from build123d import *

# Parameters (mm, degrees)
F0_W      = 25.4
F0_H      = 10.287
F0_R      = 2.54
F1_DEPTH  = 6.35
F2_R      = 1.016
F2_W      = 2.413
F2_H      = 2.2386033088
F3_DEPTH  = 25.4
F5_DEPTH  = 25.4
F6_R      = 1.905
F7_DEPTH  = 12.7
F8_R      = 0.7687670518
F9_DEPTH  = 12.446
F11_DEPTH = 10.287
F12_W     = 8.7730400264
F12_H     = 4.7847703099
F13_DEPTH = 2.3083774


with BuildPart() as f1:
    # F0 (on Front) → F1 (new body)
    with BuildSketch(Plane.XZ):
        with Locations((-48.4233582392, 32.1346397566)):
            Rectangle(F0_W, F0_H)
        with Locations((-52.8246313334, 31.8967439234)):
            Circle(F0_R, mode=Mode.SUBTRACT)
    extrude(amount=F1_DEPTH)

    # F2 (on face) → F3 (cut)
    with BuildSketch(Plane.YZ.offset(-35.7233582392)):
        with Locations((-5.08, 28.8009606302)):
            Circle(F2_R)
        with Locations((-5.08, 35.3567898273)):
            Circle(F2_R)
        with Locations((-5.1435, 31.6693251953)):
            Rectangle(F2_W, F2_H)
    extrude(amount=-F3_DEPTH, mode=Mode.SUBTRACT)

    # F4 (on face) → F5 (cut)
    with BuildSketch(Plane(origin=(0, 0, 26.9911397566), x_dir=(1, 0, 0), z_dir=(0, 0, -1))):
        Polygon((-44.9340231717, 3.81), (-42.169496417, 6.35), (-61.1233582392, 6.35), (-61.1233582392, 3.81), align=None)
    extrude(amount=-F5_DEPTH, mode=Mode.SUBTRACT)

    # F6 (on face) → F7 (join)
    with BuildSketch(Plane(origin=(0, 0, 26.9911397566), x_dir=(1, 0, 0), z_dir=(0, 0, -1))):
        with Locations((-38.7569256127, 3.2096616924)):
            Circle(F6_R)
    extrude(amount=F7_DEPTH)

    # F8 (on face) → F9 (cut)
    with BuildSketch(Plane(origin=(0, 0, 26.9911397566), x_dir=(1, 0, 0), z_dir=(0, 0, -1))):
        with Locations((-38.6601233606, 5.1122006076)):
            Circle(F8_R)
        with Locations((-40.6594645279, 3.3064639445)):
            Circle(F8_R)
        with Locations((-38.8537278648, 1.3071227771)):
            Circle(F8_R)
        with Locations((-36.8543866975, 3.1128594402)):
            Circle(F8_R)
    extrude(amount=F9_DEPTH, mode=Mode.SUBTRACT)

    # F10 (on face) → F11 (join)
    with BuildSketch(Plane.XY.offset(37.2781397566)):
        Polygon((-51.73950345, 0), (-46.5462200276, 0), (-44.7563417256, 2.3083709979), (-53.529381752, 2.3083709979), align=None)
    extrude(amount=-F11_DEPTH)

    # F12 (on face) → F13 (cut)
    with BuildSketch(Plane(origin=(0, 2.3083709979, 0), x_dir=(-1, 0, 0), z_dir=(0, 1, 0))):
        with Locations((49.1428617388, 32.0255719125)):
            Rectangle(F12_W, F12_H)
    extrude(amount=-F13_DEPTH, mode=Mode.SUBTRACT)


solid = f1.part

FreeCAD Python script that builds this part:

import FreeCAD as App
import Part
import Sketcher
from FreeCAD import Vector
Q = App.Units.Quantity


def add_polygon(sketch, points):
    """Adds a closed chain of lines whose ends are joined by coincident constraints."""
    first, n = sketch.GeometryCount, len(points)
    for a, b in zip(points, points[1:] + points[:1]):
        sketch.addGeometry(Part.LineSegment(App.Vector(*a, 0), App.Vector(*b, 0)), False)
    for i in range(n):
        sketch.addConstraint(Sketcher.Constraint("Coincident", first + i, 2, first + (i + 1) % n, 1))

doc = App.newDocument("Part")
body = doc.addObject("PartDesign::Body", "Body")

# Sketch on XZ plane
sketch1 = doc.addObject("Sketcher::SketchObject", "Sketch")
body.addObject(sketch1)
sketch1.AttachmentSupport = (doc.XZ_Plane, [""])
sketch1.MapMode = "FlatFace"
add_polygon(sketch1, [(-61.123358, 37.27814), (-61.123358, 26.99114), (-35.723358, 26.99114), (-35.723358, 37.27814)])  # lines 0-3
sketch1.addGeometry(Part.Circle(Vector(-52.824631, 31.896744, 0), Vector(0, 0, 1), 2.54), False)  # 4
sketch1.addConstraint([
    Sketcher.Constraint("Vertical", 0),
    Sketcher.Constraint("Horizontal", 1),
    Sketcher.Constraint("Vertical", 2),
    Sketcher.Constraint("Horizontal", 3),
    Sketcher.Constraint("Diameter", 4, Q("0.2 in")),
    Sketcher.Constraint("DistanceX", 1, 1, 1, 2, Q("1 in")),
    Sketcher.Constraint("DistanceY", 0, 2, 0, 1, Q("0.405 in")),
    Sketcher.Constraint("DistanceX", 4, 3, -1, 1, Q("52.824631 mm")),
    Sketcher.Constraint("DistanceX", 0, 2, -1, 1, Q("61.123358 mm")),
    Sketcher.Constraint("DistanceY", -1, 1, 0, 2, Q("26.99114 mm")),
    Sketcher.Constraint("DistanceY", -1, 1, 4, 3, Q("31.896744 mm")),
])
pad1 = doc.addObject("PartDesign::Pad", "Pad")
body.addObject(pad1)
pad1.Profile = sketch1
pad1.Length = Q("0.25 in")

# Sketch on YZ plane
sketch2 = doc.addObject("Sketcher::SketchObject", "Sketch001")
body.addObject(sketch2)
sketch2.AttachmentSupport = (doc.YZ_Plane, [""])
sketch2.MapMode = "FlatFace"
sketch2.AttachmentOffset = App.Placement(Vector(0, 0, -35.723358), App.Rotation())
sketch2.addGeometry(Part.Circle(Vector(-5.08, 28.800961, 0), Vector(0, 0, 1), 1.016), False)  # 0
sketch2.addGeometry(Part.Circle(Vector(-5.08, 35.35679, 0), Vector(0, 0, 1), 1.016), False)  # 1
add_polygon(sketch2, [(-6.35, 32.788627), (-6.35, 30.550024), (-3.937, 30.550024), (-3.937, 32.788627)])  # lines 2-5
sketch2.addConstraint([
    Sketcher.Constraint("Vertical", 2),
    Sketcher.Constraint("Horizontal", 3),
    Sketcher.Constraint("Vertical", 4),
    Sketcher.Constraint("Horizontal", 5),
    Sketcher.Constraint("Equal", 0, 1),
    Sketcher.Constraint("Vertical", 0, 3, 1, 3),
    Sketcher.Constraint("Diameter", 0, Q("0.08 in")),
    Sketcher.Constraint("DistanceX", 0, 3, -1, 1, Q("0.2 in")),
    Sketcher.Constraint("DistanceX", 3, 1, 3, 2, Q("0.095 in")),
    Sketcher.Constraint("DistanceX", 2, 2, -1, 1, Q("0.25 in")),
    Sketcher.Constraint("DistanceY", 2, 2, 2, 1, Q("2.238603 mm")),
    Sketcher.Constraint("DistanceY", -1, 1, 0, 3, Q("28.800961 mm")),
    Sketcher.Constraint("DistanceY", -1, 1, 1, 3, Q("35.35679 mm")),
    Sketcher.Constraint("DistanceY", -1, 1, 2, 2, Q("30.550024 mm")),
])
pocket1 = doc.addObject("PartDesign::Pocket", "Pocket")
body.addObject(pocket1)
pocket1.Profile = sketch2
pocket1.Length = Q("1 in")

# Sketch on XY plane
sketch3 = doc.addObject("Sketcher::SketchObject", "Sketch002")
body.addObject(sketch3)
sketch3.AttachmentSupport = (doc.XY_Plane, [""])
sketch3.MapMode = "FlatFace"
sketch3.AttachmentOffset = App.Placement(Vector(0, 0, 26.99114), App.Rotation())
add_polygon(sketch3, [(-44.934023, -3.81), (-42.169496, -6.35), (-61.123358, -6.35), (-61.123358, -3.81)])  # lines 0-3
sketch3.addConstraint([
    Sketcher.Constraint("Horizontal", 1),
    Sketcher.Constraint("Vertical", 2),
    Sketcher.Constraint("Horizontal", 3),
    Sketcher.Constraint("DistanceY", 2, 1, 2, 2, Q("0.1 in")),
    Sketcher.Constraint("DistanceY", 0, 2, -1, 1, Q("0.25 in")),
    Sketcher.Constraint("DistanceX", 1, 2, 1, 1, Q("18.953862 mm")),
    Sketcher.Constraint("DistanceX", 3, 1, 3, 2, Q("16.189335 mm")),
    Sketcher.Constraint("DistanceX", 1, 2, -1, 1, Q("61.123358 mm")),
])
pocket2 = doc.addObject("PartDesign::Pocket", "Pocket001")
body.addObject(pocket2)
pocket2.Profile = sketch3
pocket2.Length = Q("1 in")
pocket2.Reversed = True

# Sketch on XY plane
sketch4 = doc.addObject("Sketcher::SketchObject", "Sketch003")
body.addObject(sketch4)
sketch4.AttachmentSupport = (doc.XY_Plane, [""])
sketch4.MapMode = "FlatFace"
sketch4.AttachmentOffset = App.Placement(Vector(0, 0, 26.99114), App.Rotation())
sketch4.addGeometry(Part.Circle(Vector(-38.756926, -3.209662, 0), Vector(0, 0, 1), 1.905), False)
sketch4.addConstraint([
    Sketcher.Constraint("Diameter", 0, Q("0.15 in")),
    Sketcher.Constraint("DistanceY", 0, 3, -1, 1, Q("3.209662 mm")),
    Sketcher.Constraint("DistanceX", 0, 3, -1, 1, Q("38.756926 mm")),
])
pad2 = doc.addObject("PartDesign::Pad", "Pad001")
body.addObject(pad2)
pad2.Profile = sketch4
pad2.Length = Q("0.5 in")
pad2.Reversed = True

# Sketch on XY plane
sketch5 = doc.addObject("Sketcher::SketchObject", "Sketch004")
body.addObject(sketch5)
sketch5.AttachmentSupport = (doc.XY_Plane, [""])
sketch5.MapMode = "FlatFace"
sketch5.AttachmentOffset = App.Placement(Vector(0, 0, 26.99114), App.Rotation())
sketch5.addGeometry([
    Part.Circle(Vector(-38.660123, -5.112201, 0), Vector(0, 0, 1), 0.768767),
    Part.Circle(Vector(-40.659465, -3.306464, 0), Vector(0, 0, 1), 0.768767),
    Part.Circle(Vector(-38.853728, -1.307123, 0), Vector(0, 0, 1), 0.768767),
    Part.Circle(Vector(-36.854387, -3.112859, 0), Vector(0, 0, 1), 0.768767),
], False)
sketch5.addConstraint([
    Sketcher.Constraint("Equal", 0, 1),
    Sketcher.Constraint("Equal", 1, 2),
    Sketcher.Constraint("Equal", 2, 3),
    Sketcher.Constraint("Diameter", 0, Q("1.537534 mm")),
    Sketcher.Constraint("DistanceY", 0, 3, -1, 1, Q("5.112201 mm")),
    Sketcher.Constraint("DistanceY", 3, 3, -1, 1, Q("3.112859 mm")),
    Sketcher.Constraint("DistanceX", 1, 3, 0, 3, Q("1.999341 mm")),
    Sketcher.Constraint("DistanceY", 1, 3, 2, 3, Q("1.999341 mm")),
    Sketcher.Constraint("DistanceX", 2, 3, 3, 3, Q("1.999341 mm")),
    Sketcher.Constraint("DistanceX", 0, 3, -1, 1, Q("38.660123 mm")),
    Sketcher.Constraint("DistanceY", 1, 3, -1, 1, Q("3.306464 mm")),
    Sketcher.Constraint("DistanceX", 2, 3, -1, 1, Q("38.853728 mm")),
])
pocket3 = doc.addObject("PartDesign::Pocket", "Pocket002")
body.addObject(pocket3)
pocket3.Profile = sketch5
pocket3.Length = Q("0.49 in")

# Sketch on XY plane
sketch6 = doc.addObject("Sketcher::SketchObject", "Sketch005")
body.addObject(sketch6)
sketch6.AttachmentSupport = (doc.XY_Plane, [""])
sketch6.MapMode = "FlatFace"
sketch6.AttachmentOffset = App.Placement(Vector(0, 0, 37.27814), App.Rotation())
add_polygon(sketch6, [(-51.739503, 0), (-46.54622, 0), (-44.756342, 2.308371), (-53.529382, 2.308371)])  # lines 0-3
sketch6.addConstraint([
    Sketcher.Constraint("Horizontal", 0),
    Sketcher.Constraint("Horizontal", 2),
    Sketcher.Constraint("PointOnObject", 0, 2, -1),
    Sketcher.Constraint("Equal", 1, 3),
    Sketcher.Constraint("Distance", 1, Q("0.115 in")),
    Sketcher.Constraint("DistanceX", 2, 2, 2, 1, Q("8.77304 mm")),
    Sketcher.Constraint("DistanceX", 0, 1, 0, 2, Q("5.193283 mm")),
    Sketcher.Constraint("DistanceX", 0, 2, -1, 1, Q("46.54622 mm")),
])
pad3 = doc.addObject("PartDesign::Pad", "Pad002")
body.addObject(pad3)
pad3.Profile = sketch6
pad3.Length = Q("0.405 in")
pad3.Reversed = True

# Sketch on XZ plane
sketch7 = doc.addObject("Sketcher::SketchObject", "Sketch006")
body.addObject(sketch7)
sketch7.AttachmentSupport = (doc.XZ_Plane, [""])
sketch7.MapMode = "FlatFace"
sketch7.AttachmentOffset = App.Placement(Vector(0, 0, -2.308371), App.Rotation())
add_polygon(sketch7, [(-44.756342, 34.417957), (-44.756342, 29.633187), (-53.529382, 29.633187), (-53.529382, 34.417957)])  # lines 0-3
sketch7.addConstraint([
    Sketcher.Constraint("Vertical", 0),
    Sketcher.Constraint("Horizontal", 1),
    Sketcher.Constraint("Vertical", 2),
    Sketcher.Constraint("Horizontal", 3),
    Sketcher.Constraint("DistanceX", 1, 2, 1, 1, Q("8.77304 mm")),
    Sketcher.Constraint("DistanceY", 0, 2, 0, 1, Q("4.78477 mm")),
    Sketcher.Constraint("DistanceX", 0, 2, -1, 1, Q("44.756342 mm")),
    Sketcher.Constraint("DistanceY", -1, 1, 0, 2, Q("29.633187 mm")),
])
pocket4 = doc.addObject("PartDesign::Pocket", "Pocket003")
body.addObject(pocket4)
pocket4.Profile = sketch7
pocket4.Length = 2.308377
pocket4.Reversed = True

doc.recompute()
